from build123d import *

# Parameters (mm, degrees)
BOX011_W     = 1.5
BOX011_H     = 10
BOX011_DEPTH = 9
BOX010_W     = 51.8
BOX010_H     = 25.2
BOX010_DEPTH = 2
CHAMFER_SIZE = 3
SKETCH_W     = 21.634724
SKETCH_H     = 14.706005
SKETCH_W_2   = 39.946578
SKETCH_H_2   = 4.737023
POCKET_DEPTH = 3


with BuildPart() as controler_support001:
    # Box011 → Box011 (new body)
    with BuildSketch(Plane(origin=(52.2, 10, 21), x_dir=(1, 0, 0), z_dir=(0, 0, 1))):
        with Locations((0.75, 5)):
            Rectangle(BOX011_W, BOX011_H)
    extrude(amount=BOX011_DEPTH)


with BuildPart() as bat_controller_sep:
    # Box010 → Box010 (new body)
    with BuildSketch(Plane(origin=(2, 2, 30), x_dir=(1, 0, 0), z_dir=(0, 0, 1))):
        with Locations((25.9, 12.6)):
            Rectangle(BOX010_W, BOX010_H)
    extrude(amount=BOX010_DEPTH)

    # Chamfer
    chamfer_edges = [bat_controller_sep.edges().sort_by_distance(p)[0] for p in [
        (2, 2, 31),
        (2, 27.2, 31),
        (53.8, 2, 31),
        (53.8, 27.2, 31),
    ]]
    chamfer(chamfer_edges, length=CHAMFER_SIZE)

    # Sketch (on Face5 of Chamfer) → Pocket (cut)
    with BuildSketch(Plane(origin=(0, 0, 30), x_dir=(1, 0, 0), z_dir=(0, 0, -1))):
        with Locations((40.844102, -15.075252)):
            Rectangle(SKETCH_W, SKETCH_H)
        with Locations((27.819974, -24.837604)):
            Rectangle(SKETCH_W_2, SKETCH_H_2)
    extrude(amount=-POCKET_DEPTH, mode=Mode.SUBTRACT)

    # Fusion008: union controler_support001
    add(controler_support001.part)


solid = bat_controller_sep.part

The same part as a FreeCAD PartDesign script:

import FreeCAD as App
import Part
import Sketcher


def edges_at(feature, points):
    """Names of the edges that pass closest to the given points."""
    edges = feature.Shape.Edges
    near = lambda p: min(range(len(edges)), key=lambda i: edges[i].distToShape(Part.Vertex(*p))[0])
    return sorted({f"Edge{near(p) + 1}" for p in points})

doc = App.newDocument("Part")
body = doc.addObject("PartDesign::Body", "Body")

sketch1 = doc.addObject("Sketcher::SketchObject", "Sketch")
body.addObject(sketch1)
sketch1.AttachmentSupport = (doc.XY_Plane, [""])
sketch1.MapMode = "FlatFace"
sketch1.AttachmentOffset = App.Placement(App.Vector(0, 0, 21), App.Rotation())
sketch1.addGeometry([
    Part.LineSegment(App.Vector(52.2, 20, 0), App.Vector(52.2, 10, 0)),
    Part.LineSegment(App.Vector(52.2, 10, 0), App.Vector(53.7, 10, 0)),
    Part.LineSegment(App.Vector(53.7, 10, 0), App.Vector(53.7, 20, 0)),
    Part.LineSegment(App.Vector(53.7, 20, 0), App.Vector(52.2, 20, 0)),
], False)
sketch1.addConstraint([
    Sketcher.Constraint("Coincident", 0, 2, 1, 1),
    Sketcher.Constraint("Coincident", 1, 2, 2, 1),
    Sketcher.Constraint("Coincident", 2, 2, 3, 1),
    Sketcher.Constraint("Coincident", 3, 2, 0, 1),
    Sketcher.Constraint("Vertical", 0),
    Sketcher.Constraint("Horizontal", 1),
    Sketcher.Constraint("Vertical", 2),
    Sketcher.Constraint("Horizontal", 3),
    Sketcher.Constraint("DistanceY", 0, 2, 0, 1, 10.0),
    Sketcher.Constraint("DistanceX", 1, 1, 1, 2, 1.5),
    Sketcher.Constraint("DistanceY", -1, 1, 0, 2, 10.0),
    Sketcher.Constraint("DistanceX", -1, 1, 0, 2, 52.2),
])
pad1 = doc.addObject("PartDesign::Pad", "Pad")
body.addObject(pad1)
pad1.Profile = sketch1
pad1.Length = 9
body2 = doc.addObject("PartDesign::Body", "Body001")

sketch2 = doc.addObject("Sketcher::SketchObject", "Sketch001")
body2.addObject(sketch2)
sketch2.AttachmentSupport = (doc.getObject("XY_Plane001"), [""])
sketch2.MapMode = "FlatFace"
sketch2.AttachmentOffset = App.Placement(App.Vector(0, 0, 30), App.Rotation())
sketch2.addGeometry([
    Part.LineSegment(App.Vector(2, 27, 0), App.Vector(2, 2, 0)),
    Part.LineSegment(App.Vector(2, 2, 0), App.Vector(54, 2, 0)),
    Part.LineSegment(App.Vector(54, 2, 0), App.Vector(54, 27, 0)),
    Part.LineSegment(App.Vector(54, 27, 0), App.Vector(2, 27, 0)),
], False)
sketch2.addConstraint([
    Sketcher.Constraint("Coincident", 0, 2, 1, 1),
    Sketcher.Constraint("Coincident", 1, 2, 2, 1),
    Sketcher.Constraint("Coincident", 2, 2, 3, 1),
    Sketcher.Constraint("Coincident", 3, 2, 0, 1),
    Sketcher.Constraint("Vertical", 0),
    Sketcher.Constraint("Horizontal", 1),
    Sketcher.Constraint("Vertical", 2),
    Sketcher.Constraint("Horizontal", 3),
    Sketcher.Constraint("DistanceX", 1, 1, 1, 2, 51.8),
    Sketcher.Constraint("DistanceY", 0, 2, 0, 1, 25.2),
    Sketcher.Constraint("DistanceX", -1, 1, 0, 2, 2.0),
    Sketcher.Constraint("DistanceY", -1, 1, 0, 2, 2.0),
])
pad2 = doc.addObject("PartDesign::Pad", "Pad001")
body2.addObject(pad2)
pad2.Profile = sketch2
pad2.Length = 2
doc.recompute()

chamfer = doc.addObject("PartDesign::Chamfer", "Chamfer")
body2.addObject(chamfer)
chamfer.Base = (pad2, edges_at(pad2, [
    (2, 2, 31),
    (2, 27.2, 31),
    (53.8, 2, 31),
    (53.8, 27.2, 31),
]))
chamfer.Size = 3

sketch3 = doc.addObject("Sketcher::SketchObject", "Sketch002")
body2.addObject(sketch3)
sketch3.AttachmentSupport = (doc.getObject("XY_Plane001"), [""])
sketch3.MapMode = "FlatFace"
sketch3.AttachmentOffset = App.Placement(App.Vector(0, 0, 30), App.Rotation())
sketch3.addGeometry([
    Part.LineSegment(App.Vector(30, 7.7, 0), App.Vector(30, 22.4, 0)),
    Part.LineSegment(App.Vector(30, 22.4, 0), App.Vector(51.7, 22.4, 0)),
    Part.LineSegment(App.Vector(51.7, 22.4, 0), App.Vector(51.7, 7.7, 0)),
    Part.LineSegment(App.Vector(51.7, 7.7, 0), App.Vector(30, 7.7, 0)),
    Part.LineSegment(App.Vector(7.8, 22.5, 0), App.Vector(7.8, 27.2, 0)),
    Part.LineSegment(App.Vector(7.8, 27.2, 0), App.Vector(47.8, 27.2, 0)),
    Part.LineSegment(App.Vector(47.8, 27.2, 0), App.Vector(47.8, 22.5, 0)),
    Part.LineSegment(App.Vector(47.8, 22.5, 0), App.Vector(7.8, 22.5, 0)),
], False)
sketch3.addConstraint([
    Sketcher.Constraint("Coincident", 0, 2, 1, 1),
    Sketcher.Constraint("Coincident", 1, 2, 2, 1),
    Sketcher.Constraint("Coincident", 2, 2, 3, 1),
    Sketcher.Constraint("Coincident", 3, 2, 0, 1),
    Sketcher.Constraint("Coincident", 4, 2, 5, 1),
    Sketcher.Constraint("Coincident", 5, 2, 6, 1),
    Sketcher.Constraint("Coincident", 6, 2, 7, 1),
    Sketcher.Constraint("Coincident", 7, 2, 4, 1),
    Sketcher.Constraint("Vertical", 0),
    Sketcher.Constraint("Horizontal", 1),
    Sketcher.Constraint("Vertical", 2),
    Sketcher.Constraint("Horizontal", 3),
    Sketcher.Constraint("Vertical", 4),
    Sketcher.Constraint("Horizontal", 5),
    Sketcher.Constraint("Vertical", 6),
    Sketcher.Constraint("Horizontal", 7),
    Sketcher.Constraint("DistanceX", 5, 1, 5, 2, 39.946578),
    Sketcher.Constraint("DistanceX", 5, 2, 1, 2, 3.868201),
    Sketcher.Constraint("DistanceX", 1, 1, 1, 2, 21.634724),
    Sketcher.Constraint("DistanceY", 0, 1, 0, 2, 14.706005),
    Sketcher.Constraint("DistanceY", 4, 1, 4, 2, 4.737023),
    Sketcher.Constraint("DistanceX", -1, 1, 0, 2, 30.02674),
    Sketcher.Constraint("DistanceY", -1, 1, 2, 2, 7.72225),
    Sketcher.Constraint("DistanceY", 0, 2, 4, 2, 4.777861),
])
pocket1 = doc.addObject("PartDesign::Pocket", "Pocket")
body2.addObject(pocket1)
pocket1.Profile = sketch3
pocket1.Length = 3
pocket1.Reversed = True
doc.recompute()

boolean = doc.addObject("PartDesign::Boolean", "Boolean")
body2.addObject(boolean)
boolean.Type = "Fuse"
boolean.addObjects([body])

doc.recompute()
